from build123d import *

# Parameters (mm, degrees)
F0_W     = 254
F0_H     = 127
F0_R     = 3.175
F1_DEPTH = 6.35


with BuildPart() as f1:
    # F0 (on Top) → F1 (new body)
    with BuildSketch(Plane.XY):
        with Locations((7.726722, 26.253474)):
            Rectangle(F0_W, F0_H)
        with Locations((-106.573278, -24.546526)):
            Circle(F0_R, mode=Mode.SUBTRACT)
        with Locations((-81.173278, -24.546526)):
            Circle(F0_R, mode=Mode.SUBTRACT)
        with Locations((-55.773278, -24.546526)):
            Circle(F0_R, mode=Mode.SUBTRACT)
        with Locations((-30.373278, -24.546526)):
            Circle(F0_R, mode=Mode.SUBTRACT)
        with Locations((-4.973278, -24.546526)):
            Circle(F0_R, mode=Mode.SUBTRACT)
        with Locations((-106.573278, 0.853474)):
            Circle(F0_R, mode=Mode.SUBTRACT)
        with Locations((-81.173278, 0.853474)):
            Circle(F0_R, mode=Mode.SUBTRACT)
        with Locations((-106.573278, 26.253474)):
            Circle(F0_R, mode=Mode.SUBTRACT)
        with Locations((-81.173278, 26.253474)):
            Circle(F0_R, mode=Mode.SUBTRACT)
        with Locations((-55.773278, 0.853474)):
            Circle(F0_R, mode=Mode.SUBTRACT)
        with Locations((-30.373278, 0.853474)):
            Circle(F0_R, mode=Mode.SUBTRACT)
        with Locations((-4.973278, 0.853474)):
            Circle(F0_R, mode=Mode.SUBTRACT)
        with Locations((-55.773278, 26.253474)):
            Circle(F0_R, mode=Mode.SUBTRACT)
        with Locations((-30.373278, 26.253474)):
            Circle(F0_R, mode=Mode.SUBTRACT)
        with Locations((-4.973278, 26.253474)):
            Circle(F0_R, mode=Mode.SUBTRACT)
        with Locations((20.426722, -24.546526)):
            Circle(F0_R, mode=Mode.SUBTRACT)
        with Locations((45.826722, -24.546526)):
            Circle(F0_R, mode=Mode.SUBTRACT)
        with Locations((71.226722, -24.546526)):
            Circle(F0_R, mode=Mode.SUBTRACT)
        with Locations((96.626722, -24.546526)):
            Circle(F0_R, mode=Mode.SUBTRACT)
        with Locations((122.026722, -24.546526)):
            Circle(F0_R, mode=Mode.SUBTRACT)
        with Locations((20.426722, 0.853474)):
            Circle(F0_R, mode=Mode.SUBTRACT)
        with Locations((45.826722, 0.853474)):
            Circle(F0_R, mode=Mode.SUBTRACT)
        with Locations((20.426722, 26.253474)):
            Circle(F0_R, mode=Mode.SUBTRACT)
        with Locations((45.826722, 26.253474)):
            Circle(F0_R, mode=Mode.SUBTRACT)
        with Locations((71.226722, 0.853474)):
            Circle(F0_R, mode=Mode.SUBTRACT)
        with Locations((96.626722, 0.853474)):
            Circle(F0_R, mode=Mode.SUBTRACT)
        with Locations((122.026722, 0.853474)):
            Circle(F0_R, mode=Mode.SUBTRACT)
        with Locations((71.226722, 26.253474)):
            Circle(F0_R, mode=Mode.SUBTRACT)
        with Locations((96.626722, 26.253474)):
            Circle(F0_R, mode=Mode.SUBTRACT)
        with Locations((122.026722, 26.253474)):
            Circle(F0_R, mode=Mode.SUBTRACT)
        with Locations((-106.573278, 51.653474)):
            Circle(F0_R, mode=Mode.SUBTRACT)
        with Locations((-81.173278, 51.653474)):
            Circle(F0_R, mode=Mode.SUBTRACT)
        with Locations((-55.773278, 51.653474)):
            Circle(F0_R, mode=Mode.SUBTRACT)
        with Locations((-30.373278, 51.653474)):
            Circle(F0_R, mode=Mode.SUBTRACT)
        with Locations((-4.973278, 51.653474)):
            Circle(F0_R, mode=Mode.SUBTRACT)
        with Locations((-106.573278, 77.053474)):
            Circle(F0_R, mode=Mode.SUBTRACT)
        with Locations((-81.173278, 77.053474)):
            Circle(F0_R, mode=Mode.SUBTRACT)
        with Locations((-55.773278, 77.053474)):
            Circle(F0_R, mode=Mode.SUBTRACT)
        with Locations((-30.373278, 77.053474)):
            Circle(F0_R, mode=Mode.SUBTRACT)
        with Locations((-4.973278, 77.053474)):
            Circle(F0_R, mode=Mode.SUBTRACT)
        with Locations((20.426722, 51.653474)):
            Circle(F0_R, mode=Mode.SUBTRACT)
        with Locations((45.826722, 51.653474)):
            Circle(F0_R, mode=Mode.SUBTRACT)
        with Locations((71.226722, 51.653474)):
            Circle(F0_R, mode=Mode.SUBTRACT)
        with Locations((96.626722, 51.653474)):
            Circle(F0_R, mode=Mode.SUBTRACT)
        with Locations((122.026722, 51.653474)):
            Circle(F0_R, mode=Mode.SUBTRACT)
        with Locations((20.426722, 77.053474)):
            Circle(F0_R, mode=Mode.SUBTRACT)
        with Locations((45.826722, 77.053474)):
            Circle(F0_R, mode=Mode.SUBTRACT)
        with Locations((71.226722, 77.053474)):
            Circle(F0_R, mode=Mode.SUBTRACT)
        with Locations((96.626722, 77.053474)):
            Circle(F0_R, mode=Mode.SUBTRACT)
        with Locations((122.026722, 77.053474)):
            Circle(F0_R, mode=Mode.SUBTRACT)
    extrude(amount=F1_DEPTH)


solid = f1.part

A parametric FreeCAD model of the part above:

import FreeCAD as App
import Part
import Sketcher

V = App.Vector
Q = App.Units.Quantity

doc = App.newDocument("Part")
body = doc.addObject("PartDesign::Body", "Body")

sketch1 = doc.addObject("Sketcher::SketchObject", "Sketch")
body.addObject(sketch1)
sketch1.AttachmentSupport = (doc.XY_Plane, [""])
sketch1.MapMode = "FlatFace"
sketch1.addGeometry([
    Part.LineSegment(V(-119.3, 89.8, 0), V(-119.3, -37.2, 0)),
    Part.LineSegment(V(-119.3, -37.2, 0), V(134.7, -37.2, 0)),
    Part.LineSegment(V(134.7, -37.2, 0), V(134.7, 89.8, 0)),
    Part.LineSegment(V(134.7, 89.8, 0), V(-119.3, 89.8, 0)),
    Part.Circle(V(-106.6, -24.5, 0), V(0, 0, 1), 3.2),
    Part.Circle(V(-81.2, -24.5, 0), V(0, 0, 1), 3.2),
    Part.Circle(V(-55.8, -24.5, 0), V(0, 0, 1), 3.2),
    Part.Circle(V(-30.4, -24.5, 0), V(0, 0, 1), 3.2),
    Part.Circle(V(-5, -24.5, 0), V(0, 0, 1), 3.2),
    Part.Circle(V(-106.6, 0.9, 0), V(0, 0, 1), 3.2),
    Part.Circle(V(-81.2, 0.9, 0), V(0, 0, 1), 3.2),
    Part.Circle(V(-55.8, 0.9, 0), V(0, 0, 1), 3.2),
    Part.Circle(V(-30.4, 0.9, 0), V(0, 0, 1), 3.2),
    Part.Circle(V(-5, 0.9, 0), V(0, 0, 1), 3.2),
    Part.Circle(V(20.4, -24.5, 0), V(0, 0, 1), 3.2),
    Part.Circle(V(45.8, -24.5, 0), V(0, 0, 1), 3.2),
    Part.Circle(V(71.2, -24.5, 0), V(0, 0, 1), 3.2),
    Part.Circle(V(96.6, -24.5, 0), V(0, 0, 1), 3.2),
    Part.Circle(V(122, -24.5, 0), V(0, 0, 1), 3.2),
    Part.Circle(V(20.4, 0.9, 0), V(0, 0, 1), 3.2),
    Part.Circle(V(45.8, 0.9, 0), V(0, 0, 1), 3.2),
    Part.Circle(V(71.2, 0.9, 0), V(0, 0, 1), 3.2),
    Part.Circle(V(96.6, 0.9, 0), V(0, 0, 1), 3.2),
    Part.Circle(V(122, 0.9, 0), V(0, 0, 1), 3.2),
    Part.Circle(V(-106.6, 26.3, 0), V(0, 0, 1), 3.2),
    Part.Circle(V(-81.2, 26.3, 0), V(0, 0, 1), 3.2),
    Part.Circle(V(-55.8, 26.3, 0), V(0, 0, 1), 3.2),
    Part.Circle(V(-106.6, 51.7, 0), V(0, 0, 1), 3.2),
    Part.Circle(V(-81.2, 51.7, 0), V(0, 0, 1), 3.2),
    Part.Circle(V(-55.8, 51.7, 0), V(0, 0, 1), 3.2),
    Part.Circle(V(-30.4, 26.3, 0), V(0, 0, 1), 3.2),
    Part.Circle(V(-5, 26.3, 0), V(0, 0, 1), 3.2),
    Part.Circle(V(-30.4, 51.7, 0), V(0, 0, 1), 3.2),
    Part.Circle(V(-5, 51.7, 0), V(0, 0, 1), 3.2),
    Part.Circle(V(-106.6, 77.1, 0), V(0, 0, 1), 3.2),
    Part.Circle(V(-81.2, 77.1, 0), V(0, 0, 1), 3.2),
    Part.Circle(V(-55.8, 77.1, 0), V(0, 0, 1), 3.2),
    Part.Circle(V(-30.4, 77.1, 0), V(0, 0, 1), 3.2),
    Part.Circle(V(-5, 77.1, 0), V(0, 0, 1), 3.2),
    Part.Circle(V(20.4, 26.3, 0), V(0, 0, 1), 3.2),
    Part.Circle(V(45.8, 26.3, 0), V(0, 0, 1), 3.2),
    Part.Circle(V(20.4, 51.7, 0), V(0, 0, 1), 3.2),
    Part.Circle(V(45.8, 51.7, 0), V(0, 0, 1), 3.2),
    Part.Circle(V(71.2, 26.3, 0), V(0, 0, 1), 3.2),
    Part.Circle(V(96.6, 26.3, 0), V(0, 0, 1), 3.2),
    Part.Circle(V(122, 26.3, 0), V(0, 0, 1), 3.2),
    Part.Circle(V(71.2, 51.7, 0), V(0, 0, 1), 3.2),
    Part.Circle(V(96.6, 51.7, 0), V(0, 0, 1), 3.2),
    Part.Circle(V(122, 51.7, 0), V(0, 0, 1), 3.2),
    Part.Circle(V(20.4, 77.1, 0), V(0, 0, 1), 3.2),
    Part.Circle(V(45.8, 77.1, 0), V(0, 0, 1), 3.2),
    Part.Circle(V(71.2, 77.1, 0), V(0, 0, 1), 3.2),
    Part.Circle(V(96.6, 77.1, 0), V(0, 0, 1), 3.2),
    Part.Circle(V(122, 77.1, 0), V(0, 0, 1), 3.2),
], False)
sketch1.addConstraint([
    Sketcher.Constraint("Coincident", 0, 2, 1, 1),
    Sketcher.Constraint("Coincident", 1, 2, 2, 1),
    Sketcher.Constraint("Coincident", 2, 2, 3, 1),
    Sketcher.Constraint("Coincident", 3, 2, 0, 1),
    Sketcher.Constraint("Vertical", 0),
    Sketcher.Constraint("Horizontal", 1),
    Sketcher.Constraint("Vertical", 2),
    Sketcher.Constraint("Horizontal", 3),
    Sketcher.Constraint("Equal", 4, 5),
    Sketcher.Constraint("Equal", 5, 6),
    Sketcher.Constraint("Equal", 6, 7),
    Sketcher.Constraint("Equal", 7, 8),
    Sketcher.Constraint("Equal", 8, 9),
    Sketcher.Constraint("Equal", 9, 10),
    Sketcher.Constraint("Equal", 10, 11),
    Sketcher.Constraint("Equal", 11, 12),
    Sketcher.Constraint("Equal", 12, 13),
    Sketcher.Constraint("Equal", 13, 14),
    Sketcher.Constraint("Equal", 14, 15),
    Sketcher.Constraint("Equal", 15, 16),
    Sketcher.Constraint("Equal", 16, 17),
    Sketcher.Constraint("Equal", 17, 18),
    Sketcher.Constraint("Equal", 18, 19),
    Sketcher.Constraint("Equal", 19, 20),
    Sketcher.Constraint("Equal", 20, 21),
    Sketcher.Constraint("Equal", 21, 22),
    Sketcher.Constraint("Equal", 22, 23),
    Sketcher.Constraint("Equal", 23, 24),
    Sketcher.Constraint("Equal", 24, 25),
    Sketcher.Constraint("Equal", 25, 26),
    Sketcher.Constraint("Equal", 26, 27),
    Sketcher.Constraint("Equal", 27, 28),
    Sketcher.Constraint("Equal", 28, 29),
    Sketcher.Constraint("Equal", 29, 30),
    Sketcher.Constraint("Equal", 30, 31),
    Sketcher.Constraint("Equal", 31, 32),
    Sketcher.Constraint("Equal", 32, 33),
    Sketcher.Constraint("Equal", 33, 34),
    Sketcher.Constraint("Equal", 34, 35),
    Sketcher.Constraint("Equal", 35, 36),
    Sketcher.Constraint("Equal", 36, 37),
    Sketcher.Constraint("Equal", 37, 38),
    Sketcher.Constraint("Equal", 38, 39),
    Sketcher.Constraint("Equal", 39, 40),
    Sketcher.Constraint("Equal", 40, 41),
    Sketcher.Constraint("Equal", 41, 42),
    Sketcher.Constraint("Equal", 42, 43),
    Sketcher.Constraint("Equal", 43, 44),
    Sketcher.Constraint("Equal", 44, 45),
    Sketcher.Constraint("Equal", 45, 46),
    Sketcher.Constraint("Equal", 46, 47),
    Sketcher.Constraint("Equal", 47, 48),
    Sketcher.Constraint("Equal", 48, 49),
    Sketcher.Constraint("Equal", 49, 50),
    Sketcher.Constraint("Equal", 50, 51),
    Sketcher.Constraint("Equal", 51, 52),
    Sketcher.Constraint("Equal", 52, 53),
    Sketcher.Constraint("Horizontal", 4, 3, 5, 3),
    Sketcher.Constraint("Horizontal", 5, 3, 6, 3),
    Sketcher.Constraint("Horizontal", 6, 3, 7, 3),
    Sketcher.Constraint("Horizontal", 7, 3, 8, 3),
    Sketcher.Constraint("Horizontal", 9, 3, 10, 3),
    Sketcher.Constraint("Horizontal", 10, 3, 11, 3),
    Sketcher.Constraint("Horizontal", 11, 3, 12, 3),
    Sketcher.Constraint("Horizontal", 12, 3, 13, 3),
    Sketcher.Constraint("Horizontal", 8, 3, 14, 3),
    Sketcher.Constraint("Horizontal", 14, 3, 15, 3),
    Sketcher.Constraint("Horizontal", 15, 3, 16, 3),
    Sketcher.Constraint("Horizontal", 16, 3, 17, 3),
    Sketcher.Constraint("Horizontal", 17, 3, 18, 3),
    Sketcher.Constraint("Horizontal", 13, 3, 19, 3),
    Sketcher.Constraint("Horizontal", 19, 3, 20, 3),
    Sketcher.Constraint("Horizontal", 20, 3, 21, 3),
    Sketcher.Constraint("Horizontal", 21, 3, 22, 3),
    Sketcher.Constraint("Horizontal", 22, 3, 23, 3),
    Sketcher.Constraint("Horizontal", 24, 3, 25, 3),
    Sketcher.Constraint("Horizontal", 25, 3, 26, 3),
    Sketcher.Constraint("Horizontal", 27, 3, 28, 3),
    Sketcher.Constraint("Horizontal", 28, 3, 29, 3),
    Sketcher.Constraint("Horizontal", 26, 3, 30, 3),
    Sketcher.Constraint("Horizontal", 30, 3, 31, 3),
    Sketcher.Constraint("Horizontal", 29, 3, 32, 3),
    Sketcher.Constraint("Horizontal", 32, 3, 33, 3),
    Sketcher.Constraint("Horizontal", 34, 3, 35, 3),
    Sketcher.Constraint("Horizontal", 35, 3, 36, 3),
    Sketcher.Constraint("Horizontal", 36, 3, 37, 3),
    Sketcher.Constraint("Horizontal", 37, 3, 38, 3),
    Sketcher.Constraint("Horizontal", 31, 3, 39, 3),
    Sketcher.Constraint("Horizontal", 39, 3, 40, 3),
    Sketcher.Constraint("Horizontal", 33, 3, 41, 3),
    Sketcher.Constraint("Horizontal", 41, 3, 42, 3),
    Sketcher.Constraint("Horizontal", 40, 3, 43, 3),
    Sketcher.Constraint("Horizontal", 43, 3, 44, 3),
    Sketcher.Constraint("Horizontal", 44, 3, 45, 3),
    Sketcher.Constraint("Horizontal", 42, 3, 46, 3),
    Sketcher.Constraint("Horizontal", 46, 3, 47, 3),
    Sketcher.Constraint("Horizontal", 47, 3, 48, 3),
    Sketcher.Constraint("Horizontal", 38, 3, 49, 3),
    Sketcher.Constraint("Horizontal", 49, 3, 50, 3),
    Sketcher.Constraint("Horizontal", 50, 3, 51, 3),
    Sketcher.Constraint("Horizontal", 51, 3, 52, 3),
    Sketcher.Constraint("Horizontal", 52, 3, 53, 3),
    Sketcher.Constraint("Vertical", 4, 3, 9, 3),
    Sketcher.Constraint("Vertical", 5, 3, 10, 3),
    Sketcher.Constraint("Vertical", 6, 3, 11, 3),
    Sketcher.Constraint("Vertical", 7, 3, 12, 3),
    Sketcher.Constraint("Vertical", 8, 3, 13, 3),
    Sketcher.Constraint("Vertical", 14, 3, 19, 3),
    Sketcher.Constraint("Vertical", 15, 3, 20, 3),
    Sketcher.Constraint("Vertical", 16, 3, 21, 3),
    Sketcher.Constraint("Vertical", 17, 3, 22, 3),
    Sketcher.Constraint("Vertical", 18, 3, 23, 3),
    Sketcher.Constraint("Vertical", 9, 3, 24, 3),
    Sketcher.Constraint("Vertical", 10, 3, 25, 3),
    Sketcher.Constraint("Vertical", 11, 3, 26, 3),
    Sketcher.Constraint("Vertical", 24, 3, 27, 3),
    Sketcher.Constraint("Vertical", 25, 3, 28, 3),
    Sketcher.Constraint("Vertical", 26, 3, 29, 3),
    Sketcher.Constraint("Vertical", 12, 3, 30, 3),
    Sketcher.Constraint("Vertical", 13, 3, 31, 3),
    Sketcher.Constraint("Vertical", 30, 3, 32, 3),
    Sketcher.Constraint("Vertical", 31, 3, 33, 3),
    Sketcher.Constraint("Vertical", 27, 3, 34, 3),
    Sketcher.Constraint("Vertical", 28, 3, 35, 3),
    Sketcher.Constraint("Vertical", 29, 3, 36, 3),
    Sketcher.Constraint("Vertical", 32, 3, 37, 3),
    Sketcher.Constraint("Vertical", 33, 3, 38, 3),
    Sketcher.Constraint("Vertical", 19, 3, 39, 3),
    Sketcher.Constraint("Vertical", 20, 3, 40, 3),
    Sketcher.Constraint("Vertical", 39, 3, 41, 3),
    Sketcher.Constraint("Vertical", 40, 3, 42, 3),
    Sketcher.Constraint("Vertical", 21, 3, 43, 3),
    Sketcher.Constraint("Vertical", 22, 3, 44, 3),
    Sketcher.Constraint("Vertical", 23, 3, 45, 3),
    Sketcher.Constraint("Vertical", 43, 3, 46, 3),
    Sketcher.Constraint("Vertical", 44, 3, 47, 3),
    Sketcher.Constraint("Vertical", 45, 3, 48, 3),
    Sketcher.Constraint("Vertical", 41, 3, 49, 3),
    Sketcher.Constraint("Vertical", 42, 3, 50, 3),
    Sketcher.Constraint("Vertical", 46, 3, 51, 3),
    Sketcher.Constraint("Vertical", 47, 3, 52, 3),
    Sketcher.Constraint("Vertical", 48, 3, 53, 3),
    Sketcher.Constraint("Diameter", 4, Q("0.25 in")),
    Sketcher.Constraint("DistanceX", 1, 1, 1, 2, Q("10 in")),
    Sketcher.Constraint("DistanceY", 0, 2, 0, 1, Q("5 in")),
    Sketcher.Constraint("DistanceX", 4, 3, 5, 3, Q("1 in")),
    Sketcher.Constraint("DistanceX", 5, 3, 6, 3, Q("1 in")),
    Sketcher.Constraint("DistanceX", 6, 3, 7, 3, Q("1 in")),
    Sketcher.Constraint("DistanceX", 7, 3, 8, 3, Q("1 in")),
    Sketcher.Constraint("DistanceY", 4, 3, 9, 3, Q("1 in")),
    Sketcher.Constraint("DistanceX", 8, 3, 14, 3, Q("1 in")),
    Sketcher.Constraint("DistanceX", 14, 3, 15, 3, Q("1 in")),
    Sketcher.Constraint("DistanceX", 15, 3, 16, 3, Q("1 in")),
    Sketcher.Constraint("DistanceX", 16, 3, 17, 3, Q("1 in")),
    Sketcher.Constraint("DistanceX", 17, 3, 18, 3, Q("1 in")),
    Sketcher.Constraint("DistanceY", 9, 3, 24, 3, Q("1 in")),
    Sketcher.Constraint("DistanceY", 24, 3, 27, 3, Q("1 in")),
    Sketcher.Constraint("DistanceY", 27, 3, 34, 3, Q("1 in")),
    Sketcher.Constraint("DistanceX", 0, 2, 4, 3, Q("0.5 in")),
    Sketcher.Constraint("DistanceY", 0, 2, 4, 3, Q("0.5 in")),
    Sketcher.Constraint("DistanceX", 4, 3, -1, 1, Q("106.573278 mm")),
    Sketcher.Constraint("DistanceY", 4, 3, -1, 1, Q("24.546526 mm")),
])
pad1 = doc.addObject("PartDesign::Pad", "Pad")
body.addObject(pad1)
pad1.Profile = sketch1
pad1.Length = Q("0.25 in")

doc.recompute()
